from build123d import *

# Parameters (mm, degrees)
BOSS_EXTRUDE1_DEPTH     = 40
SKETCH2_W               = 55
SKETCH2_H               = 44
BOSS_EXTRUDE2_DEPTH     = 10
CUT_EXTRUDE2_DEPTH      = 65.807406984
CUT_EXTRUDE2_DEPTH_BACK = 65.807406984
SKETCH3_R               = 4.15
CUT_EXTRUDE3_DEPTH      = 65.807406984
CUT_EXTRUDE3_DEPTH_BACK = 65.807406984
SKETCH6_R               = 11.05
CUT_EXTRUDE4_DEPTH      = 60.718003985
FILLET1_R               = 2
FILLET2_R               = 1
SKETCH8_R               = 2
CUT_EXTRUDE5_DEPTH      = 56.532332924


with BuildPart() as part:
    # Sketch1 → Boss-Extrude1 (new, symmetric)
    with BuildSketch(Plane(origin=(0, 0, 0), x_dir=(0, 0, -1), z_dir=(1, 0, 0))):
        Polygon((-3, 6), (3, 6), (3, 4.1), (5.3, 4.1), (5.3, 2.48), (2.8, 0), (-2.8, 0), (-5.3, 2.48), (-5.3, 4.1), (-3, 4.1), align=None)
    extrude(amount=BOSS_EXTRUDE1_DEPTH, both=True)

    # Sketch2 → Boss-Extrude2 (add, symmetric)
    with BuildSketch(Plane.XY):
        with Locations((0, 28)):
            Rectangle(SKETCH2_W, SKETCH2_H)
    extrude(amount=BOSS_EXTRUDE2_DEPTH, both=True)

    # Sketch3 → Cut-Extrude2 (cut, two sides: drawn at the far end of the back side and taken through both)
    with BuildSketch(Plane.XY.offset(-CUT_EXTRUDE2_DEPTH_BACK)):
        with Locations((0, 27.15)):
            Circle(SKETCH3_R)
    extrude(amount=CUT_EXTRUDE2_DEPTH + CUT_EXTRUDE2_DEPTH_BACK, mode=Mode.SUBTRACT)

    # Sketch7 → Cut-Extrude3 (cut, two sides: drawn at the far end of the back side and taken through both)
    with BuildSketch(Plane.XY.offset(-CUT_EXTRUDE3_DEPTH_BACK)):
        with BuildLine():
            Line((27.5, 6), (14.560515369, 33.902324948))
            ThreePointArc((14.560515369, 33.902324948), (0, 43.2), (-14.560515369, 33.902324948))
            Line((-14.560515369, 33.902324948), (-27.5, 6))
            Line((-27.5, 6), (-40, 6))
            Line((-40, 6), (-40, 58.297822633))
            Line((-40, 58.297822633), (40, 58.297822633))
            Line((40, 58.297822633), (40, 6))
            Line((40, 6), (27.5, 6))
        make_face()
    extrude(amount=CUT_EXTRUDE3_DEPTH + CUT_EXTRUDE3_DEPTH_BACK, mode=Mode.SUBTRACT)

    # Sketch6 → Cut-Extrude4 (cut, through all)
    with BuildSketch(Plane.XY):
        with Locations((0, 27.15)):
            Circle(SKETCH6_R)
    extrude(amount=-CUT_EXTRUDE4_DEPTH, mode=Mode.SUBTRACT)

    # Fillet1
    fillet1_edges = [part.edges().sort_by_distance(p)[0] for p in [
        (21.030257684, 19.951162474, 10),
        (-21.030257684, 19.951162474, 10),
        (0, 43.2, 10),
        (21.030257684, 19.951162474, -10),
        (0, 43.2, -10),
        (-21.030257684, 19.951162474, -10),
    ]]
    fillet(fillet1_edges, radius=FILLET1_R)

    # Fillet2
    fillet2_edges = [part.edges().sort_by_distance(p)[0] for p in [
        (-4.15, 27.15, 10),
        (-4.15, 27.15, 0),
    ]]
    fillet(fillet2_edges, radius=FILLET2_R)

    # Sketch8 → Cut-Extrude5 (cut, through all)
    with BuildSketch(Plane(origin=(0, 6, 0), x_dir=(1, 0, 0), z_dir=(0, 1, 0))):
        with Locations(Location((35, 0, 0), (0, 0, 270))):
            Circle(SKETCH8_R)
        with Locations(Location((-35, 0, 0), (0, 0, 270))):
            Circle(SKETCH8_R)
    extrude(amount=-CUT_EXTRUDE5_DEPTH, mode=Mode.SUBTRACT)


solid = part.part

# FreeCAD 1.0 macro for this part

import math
import FreeCAD as App
import Part
import Sketcher

V = App.Vector
Q = App.Units.Quantity


def edges_at(feature, points):
    """Names of the edges that pass closest to the given points."""
    edges = feature.Shape.Edges
    near = lambda p: min(range(len(edges)), key=lambda i: edges[i].distToShape(Part.Vertex(*p))[0])
    return sorted({f"Edge{near(p) + 1}" for p in points})

doc = App.newDocument("Part")
body = doc.addObject("PartDesign::Body", "Body")

sketch1 = body.newObject("Sketcher::SketchObject", "Sketch")
sketch1.AttachmentSupport = (doc.getObject("YZ_Plane"), [""])
sketch1.MapMode = "FlatFace"
sketch1.addGeometry(Part.LineSegment(V(6, -3, 0), V(6, 3, 0)), False)
sketch1.addGeometry(Part.LineSegment(V(6, 3, 0), V(4.1, 3, 0)), False)
sketch1.addGeometry(Part.LineSegment(V(4.1, 3, 0), V(4.1, 5.3, 0)), False)
sketch1.addGeometry(Part.LineSegment(V(4.1, 5.3, 0), V(2.5, 5.3, 0)), False)
sketch1.addGeometry(Part.LineSegment(V(2.5, 5.3, 0), V(0, 2.8, 0)), False)
sketch1.addGeometry(Part.LineSegment(V(0, 2.8, 0), V(0, -2.8, 0)), False)
sketch1.addGeometry(Part.LineSegment(V(0, -2.8, 0), V(2.5, -5.3, 0)), False)
sketch1.addGeometry(Part.LineSegment(V(2.5, -5.3, 0), V(4.1, -5.3, 0)), False)
sketch1.addGeometry(Part.LineSegment(V(4.1, -5.3, 0), V(4.1, -3, 0)), False)
sketch1.addGeometry(Part.LineSegment(V(4.1, -3, 0), V(6, -3, 0)), False)
sketch1.addConstraint(Sketcher.Constraint("Coincident", 0, 2, 1, 1))
sketch1.addConstraint(Sketcher.Constraint("Coincident", 1, 2, 2, 1))
sketch1.addConstraint(Sketcher.Constraint("Coincident", 2, 2, 3, 1))
sketch1.addConstraint(Sketcher.Constraint("Coincident", 3, 2, 4, 1))
sketch1.addConstraint(Sketcher.Constraint("Coincident", 4, 2, 5, 1))
sketch1.addConstraint(Sketcher.Constraint("Coincident", 5, 2, 6, 1))
sketch1.addConstraint(Sketcher.Constraint("Coincident", 6, 2, 7, 1))
sketch1.addConstraint(Sketcher.Constraint("Coincident", 7, 2, 8, 1))
sketch1.addConstraint(Sketcher.Constraint("Coincident", 8, 2, 9, 1))
sketch1.addConstraint(Sketcher.Constraint("Coincident", 9, 2, 0, 1))
sketch1.addConstraint(Sketcher.Constraint("Vertical", 0))
sketch1.addConstraint(Sketcher.Constraint("Horizontal", 1))
sketch1.addConstraint(Sketcher.Constraint("Vertical", 2))
sketch1.addConstraint(Sketcher.Constraint("Horizontal", 3))
sketch1.addConstraint(Sketcher.Constraint("Vertical", 5))
sketch1.addConstraint(Sketcher.Constraint("Horizontal", 7))
sketch1.addConstraint(Sketcher.Constraint("Vertical", 8))
sketch1.addConstraint(Sketcher.Constraint("Horizontal", 9))
sketch1.addConstraint(Sketcher.Constraint("Symmetric", 4, 2, 5, 2, -1, 1))
sketch1.addConstraint(Sketcher.Constraint("Symmetric", 3, 2, 6, 2, -1))
sketch1.addConstraint(Sketcher.Constraint("Symmetric", 1, 2, 8, 2, -1))
sketch1.addConstraint(Sketcher.Constraint("DistanceY", 0, 1, 0, 2, Q("6 mm")))
sketch1.addConstraint(Sketcher.Constraint("DistanceX", 1, 2, 1, 1, Q("1.9 mm")))
sketch1.addConstraint(Sketcher.Constraint("DistanceY", 2, 1, 2, 2, Q("2.3 mm")))
sketch1.addConstraint(Sketcher.Constraint("DistanceY", 5, 2, 5, 1, Q("5.6 mm")))
sketch1.addConstraint(Sketcher.Constraint("DistanceX", -1, 1, 0, 2, Q("6 mm")))
sketch1.addConstraint(Sketcher.Constraint("DistanceX", 3, 2, 3, 1, Q("1.62 mm")))
pad1 = body.newObject("PartDesign::Pad", "Pad")
pad1.Profile = sketch1
pad1.Length = 80
pad1.Midplane = True

sketch2 = body.newObject("Sketcher::SketchObject", "Sketch001")
sketch2.AttachmentSupport = (doc.getObject("XY_Plane"), [""])
sketch2.MapMode = "FlatFace"
sketch2.addGeometry(Part.LineSegment(V(-28, 50, 0), V(-28, 6, 0)), False)
sketch2.addGeometry(Part.LineSegment(V(-28, 6, 0), V(28, 6, 0)), False)
sketch2.addGeometry(Part.LineSegment(V(28, 6, 0), V(28, 50, 0)), False)
sketch2.addGeometry(Part.LineSegment(V(28, 50, 0), V(-28, 50, 0)), False)
sketch2.addConstraint(Sketcher.Constraint("Coincident", 0, 2, 1, 1))
sketch2.addConstraint(Sketcher.Constraint("Coincident", 1, 2, 2, 1))
sketch2.addConstraint(Sketcher.Constraint("Coincident", 2, 2, 3, 1))
sketch2.addConstraint(Sketcher.Constraint("Coincident", 3, 2, 0, 1))
sketch2.addConstraint(Sketcher.Constraint("Vertical", 0))
sketch2.addConstraint(Sketcher.Constraint("Horizontal", 1))
sketch2.addConstraint(Sketcher.Constraint("Vertical", 2))
sketch2.addConstraint(Sketcher.Constraint("Horizontal", 3))
sketch2.addConstraint(Sketcher.Constraint("DistanceX", 1, 1, 1, 2, Q("55 mm")))
sketch2.addConstraint(Sketcher.Constraint("DistanceY", 0, 2, 0, 1, Q("44 mm")))
sketch2.addConstraint(Sketcher.Constraint("DistanceY", -1, 1, 0, 2, Q("6 mm")))
sketch2.addConstraint(Sketcher.Constraint("DistanceX", 0, 2, -1, 1, Q("27.5 mm")))
pad2 = body.newObject("PartDesign::Pad", "Pad001")
pad2.Profile = sketch2
pad2.Length = 20
pad2.Midplane = True

sketch3 = body.newObject("Sketcher::SketchObject", "Sketch002")
sketch3.AttachmentSupport = (doc.getObject("XY_Plane"), [""])
sketch3.MapMode = "FlatFace"
sketch3.addGeometry(Part.Circle(V(0, 27.1, 0), V(0, 0, 1), 4.2), False)
sketch3.addConstraint(Sketcher.Constraint("PointOnObject", 0, 3, -2))
sketch3.addConstraint(Sketcher.Constraint("Diameter", 0, Q("8.3 mm")))
sketch3.addConstraint(Sketcher.Constraint("DistanceY", -1, 1, 0, 3, Q("27.15 mm")))
pocket1 = body.newObject("PartDesign::Pocket", "Pocket")
pocket1.Profile = sketch3
pocket1.Type = "ThroughAll"
pocket1.Midplane = True

sketch4 = body.newObject("Sketcher::SketchObject", "Sketch003")
sketch4.AttachmentSupport = (doc.getObject("XY_Plane"), [""])
sketch4.MapMode = "FlatFace"
sketch4.addGeometry(Part.LineSegment(V(15, 34, 0), V(28, 6, 0)), False)
sketch4.addGeometry(Part.LineSegment(V(28, 6, 0), V(40, 6, 0)), False)
sketch4.addGeometry(Part.LineSegment(V(40, 6, 0), V(40, 58, 0)), False)
sketch4.addGeometry(Part.LineSegment(V(40, 58, 0), V(-40, 58, 0)), False)
sketch4.addGeometry(Part.LineSegment(V(-40, 58, 0), V(-40, 6, 0)), False)
sketch4.addGeometry(Part.LineSegment(V(-40, 6, 0), V(-28, 6, 0)), False)
sketch4.addGeometry(Part.LineSegment(V(-28, 6, 0), V(-15, 34, 0)), False)
sketch4.addGeometry(Part.ArcOfCircle(Part.Circle(V(0, 27, 0), V(0, 0, 1), 16), math.radians(25), math.radians(155)), False)
sketch4.addConstraint(Sketcher.Constraint("Coincident", 0, 2, 1, 1))
sketch4.addConstraint(Sketcher.Constraint("Coincident", 1, 2, 2, 1))
sketch4.addConstraint(Sketcher.Constraint("Coincident", 2, 2, 3, 1))
sketch4.addConstraint(Sketcher.Constraint("Coincident", 3, 2, 4, 1))
sketch4.addConstraint(Sketcher.Constraint("Coincident", 4, 2, 5, 1))
sketch4.addConstraint(Sketcher.Constraint("Coincident", 5, 2, 6, 1))
sketch4.addConstraint(Sketcher.Constraint("Tangent", 6, 2, 7, 2))
sketch4.addConstraint(Sketcher.Constraint("Tangent", 7, 1, 0, 1))
sketch4.addConstraint(Sketcher.Constraint("Horizontal", 1))
sketch4.addConstraint(Sketcher.Constraint("Vertical", 2))
sketch4.addConstraint(Sketcher.Constraint("Horizontal", 3))
sketch4.addConstraint(Sketcher.Constraint("Vertical", 4))
sketch4.addConstraint(Sketcher.Constraint("Horizontal", 5))
sketch4.addConstraint(Sketcher.Constraint("Symmetric", 1, 2, 4, 2, -2))
sketch4.addConstraint(Sketcher.Constraint("Symmetric", 6, 2, 7, 1, -2))
sketch4.addConstraint(Sketcher.Constraint("DistanceX", 3, 2, 3, 1, Q("80 mm")))
sketch4.addConstraint(Sketcher.Constraint("Radius", 7, Q("16.05 mm")))
sketch4.addConstraint(Sketcher.Constraint("DistanceX", 1, 1, 1, 2, Q("12.5 mm")))
sketch4.addConstraint(Sketcher.Constraint("DistanceY", -1, 1, 0, 2, Q("6 mm")))
sketch4.addConstraint(Sketcher.Constraint("DistanceY", -1, 1, 7, 3, Q("27.15 mm")))
sketch4.addConstraint(Sketcher.Constraint("DistanceY", 2, 1, 2, 2, Q("52.297823 mm")))
pocket2 = body.newObject("PartDesign::Pocket", "Pocket001")
pocket2.Profile = sketch4
pocket2.Type = "ThroughAll"
pocket2.Midplane = True

sketch5 = body.newObject("Sketcher::SketchObject", "Sketch004")
sketch5.AttachmentSupport = (doc.getObject("XY_Plane"), [""])
sketch5.MapMode = "FlatFace"
sketch5.addGeometry(Part.Circle(V(0, 27, 0), V(0, 0, 1), 11), False)
sketch5.addConstraint(Sketcher.Constraint("PointOnObject", 0, 3, -2))
sketch5.addConstraint(Sketcher.Constraint("Diameter", 0, Q("22.1 mm")))
sketch5.addConstraint(Sketcher.Constraint("DistanceY", -1, 1, 0, 3, Q("27.15 mm")))
pocket3 = body.newObject("PartDesign::Pocket", "Pocket002")
pocket3.Profile = sketch5
pocket3.Type = "ThroughAll"
doc.recompute()

fillet = body.newObject("PartDesign::Fillet", "Fillet")
fillet.Base = (pocket3, edges_at(pocket3, [
    (21.03, 19.951, 10),
    (-21.03, 19.951, 10),
    (0, 43.2, 10),
    (21.03, 19.951, -10),
    (0, 43.2, -10),
    (-21.03, 19.951, -10),
]))
fillet.Radius = 2
doc.recompute()

fillet2 = body.newObject("PartDesign::Fillet", "Fillet001")
fillet2.Base = (fillet, edges_at(fillet, [(-4.15, 27.15, 10), (-4.15, 27.15, 0)]))
fillet2.Radius = 1

sketch6 = body.newObject("Sketcher::SketchObject", "Sketch005")
sketch6.AttachmentSupport = (doc.getObject("XZ_Plane"), [""])
sketch6.MapMode = "FlatFace"
sketch6.AttachmentOffset = App.Placement(V(0, 0, -6), App.Rotation())
sketch6.addGeometry(Part.Circle(V(35, 0, 0), V(0, 0, 1), 2), False)
sketch6.addGeometry(Part.Circle(V(-35, 0, 0), V(0, 0, 1), 2), False)
sketch6.addConstraint(Sketcher.Constraint("Equal", 0, 1))
sketch6.addConstraint(Sketcher.Constraint("Symmetric", 0, 3, 1, 3, -1, 1))
sketch6.addConstraint(Sketcher.Constraint("PointOnObject", 0, 3, -1))
sketch6.addConstraint(Sketcher.Constraint("Diameter", 0, Q("4 mm")))
sketch6.addConstraint(Sketcher.Constraint("DistanceX", -1, 1, 0, 3, Q("35 mm")))
pocket4 = body.newObject("PartDesign::Pocket", "Pocket003")
pocket4.Profile = sketch6
pocket4.Type = "ThroughAll"
pocket4.Reversed = True

doc.recompute()
